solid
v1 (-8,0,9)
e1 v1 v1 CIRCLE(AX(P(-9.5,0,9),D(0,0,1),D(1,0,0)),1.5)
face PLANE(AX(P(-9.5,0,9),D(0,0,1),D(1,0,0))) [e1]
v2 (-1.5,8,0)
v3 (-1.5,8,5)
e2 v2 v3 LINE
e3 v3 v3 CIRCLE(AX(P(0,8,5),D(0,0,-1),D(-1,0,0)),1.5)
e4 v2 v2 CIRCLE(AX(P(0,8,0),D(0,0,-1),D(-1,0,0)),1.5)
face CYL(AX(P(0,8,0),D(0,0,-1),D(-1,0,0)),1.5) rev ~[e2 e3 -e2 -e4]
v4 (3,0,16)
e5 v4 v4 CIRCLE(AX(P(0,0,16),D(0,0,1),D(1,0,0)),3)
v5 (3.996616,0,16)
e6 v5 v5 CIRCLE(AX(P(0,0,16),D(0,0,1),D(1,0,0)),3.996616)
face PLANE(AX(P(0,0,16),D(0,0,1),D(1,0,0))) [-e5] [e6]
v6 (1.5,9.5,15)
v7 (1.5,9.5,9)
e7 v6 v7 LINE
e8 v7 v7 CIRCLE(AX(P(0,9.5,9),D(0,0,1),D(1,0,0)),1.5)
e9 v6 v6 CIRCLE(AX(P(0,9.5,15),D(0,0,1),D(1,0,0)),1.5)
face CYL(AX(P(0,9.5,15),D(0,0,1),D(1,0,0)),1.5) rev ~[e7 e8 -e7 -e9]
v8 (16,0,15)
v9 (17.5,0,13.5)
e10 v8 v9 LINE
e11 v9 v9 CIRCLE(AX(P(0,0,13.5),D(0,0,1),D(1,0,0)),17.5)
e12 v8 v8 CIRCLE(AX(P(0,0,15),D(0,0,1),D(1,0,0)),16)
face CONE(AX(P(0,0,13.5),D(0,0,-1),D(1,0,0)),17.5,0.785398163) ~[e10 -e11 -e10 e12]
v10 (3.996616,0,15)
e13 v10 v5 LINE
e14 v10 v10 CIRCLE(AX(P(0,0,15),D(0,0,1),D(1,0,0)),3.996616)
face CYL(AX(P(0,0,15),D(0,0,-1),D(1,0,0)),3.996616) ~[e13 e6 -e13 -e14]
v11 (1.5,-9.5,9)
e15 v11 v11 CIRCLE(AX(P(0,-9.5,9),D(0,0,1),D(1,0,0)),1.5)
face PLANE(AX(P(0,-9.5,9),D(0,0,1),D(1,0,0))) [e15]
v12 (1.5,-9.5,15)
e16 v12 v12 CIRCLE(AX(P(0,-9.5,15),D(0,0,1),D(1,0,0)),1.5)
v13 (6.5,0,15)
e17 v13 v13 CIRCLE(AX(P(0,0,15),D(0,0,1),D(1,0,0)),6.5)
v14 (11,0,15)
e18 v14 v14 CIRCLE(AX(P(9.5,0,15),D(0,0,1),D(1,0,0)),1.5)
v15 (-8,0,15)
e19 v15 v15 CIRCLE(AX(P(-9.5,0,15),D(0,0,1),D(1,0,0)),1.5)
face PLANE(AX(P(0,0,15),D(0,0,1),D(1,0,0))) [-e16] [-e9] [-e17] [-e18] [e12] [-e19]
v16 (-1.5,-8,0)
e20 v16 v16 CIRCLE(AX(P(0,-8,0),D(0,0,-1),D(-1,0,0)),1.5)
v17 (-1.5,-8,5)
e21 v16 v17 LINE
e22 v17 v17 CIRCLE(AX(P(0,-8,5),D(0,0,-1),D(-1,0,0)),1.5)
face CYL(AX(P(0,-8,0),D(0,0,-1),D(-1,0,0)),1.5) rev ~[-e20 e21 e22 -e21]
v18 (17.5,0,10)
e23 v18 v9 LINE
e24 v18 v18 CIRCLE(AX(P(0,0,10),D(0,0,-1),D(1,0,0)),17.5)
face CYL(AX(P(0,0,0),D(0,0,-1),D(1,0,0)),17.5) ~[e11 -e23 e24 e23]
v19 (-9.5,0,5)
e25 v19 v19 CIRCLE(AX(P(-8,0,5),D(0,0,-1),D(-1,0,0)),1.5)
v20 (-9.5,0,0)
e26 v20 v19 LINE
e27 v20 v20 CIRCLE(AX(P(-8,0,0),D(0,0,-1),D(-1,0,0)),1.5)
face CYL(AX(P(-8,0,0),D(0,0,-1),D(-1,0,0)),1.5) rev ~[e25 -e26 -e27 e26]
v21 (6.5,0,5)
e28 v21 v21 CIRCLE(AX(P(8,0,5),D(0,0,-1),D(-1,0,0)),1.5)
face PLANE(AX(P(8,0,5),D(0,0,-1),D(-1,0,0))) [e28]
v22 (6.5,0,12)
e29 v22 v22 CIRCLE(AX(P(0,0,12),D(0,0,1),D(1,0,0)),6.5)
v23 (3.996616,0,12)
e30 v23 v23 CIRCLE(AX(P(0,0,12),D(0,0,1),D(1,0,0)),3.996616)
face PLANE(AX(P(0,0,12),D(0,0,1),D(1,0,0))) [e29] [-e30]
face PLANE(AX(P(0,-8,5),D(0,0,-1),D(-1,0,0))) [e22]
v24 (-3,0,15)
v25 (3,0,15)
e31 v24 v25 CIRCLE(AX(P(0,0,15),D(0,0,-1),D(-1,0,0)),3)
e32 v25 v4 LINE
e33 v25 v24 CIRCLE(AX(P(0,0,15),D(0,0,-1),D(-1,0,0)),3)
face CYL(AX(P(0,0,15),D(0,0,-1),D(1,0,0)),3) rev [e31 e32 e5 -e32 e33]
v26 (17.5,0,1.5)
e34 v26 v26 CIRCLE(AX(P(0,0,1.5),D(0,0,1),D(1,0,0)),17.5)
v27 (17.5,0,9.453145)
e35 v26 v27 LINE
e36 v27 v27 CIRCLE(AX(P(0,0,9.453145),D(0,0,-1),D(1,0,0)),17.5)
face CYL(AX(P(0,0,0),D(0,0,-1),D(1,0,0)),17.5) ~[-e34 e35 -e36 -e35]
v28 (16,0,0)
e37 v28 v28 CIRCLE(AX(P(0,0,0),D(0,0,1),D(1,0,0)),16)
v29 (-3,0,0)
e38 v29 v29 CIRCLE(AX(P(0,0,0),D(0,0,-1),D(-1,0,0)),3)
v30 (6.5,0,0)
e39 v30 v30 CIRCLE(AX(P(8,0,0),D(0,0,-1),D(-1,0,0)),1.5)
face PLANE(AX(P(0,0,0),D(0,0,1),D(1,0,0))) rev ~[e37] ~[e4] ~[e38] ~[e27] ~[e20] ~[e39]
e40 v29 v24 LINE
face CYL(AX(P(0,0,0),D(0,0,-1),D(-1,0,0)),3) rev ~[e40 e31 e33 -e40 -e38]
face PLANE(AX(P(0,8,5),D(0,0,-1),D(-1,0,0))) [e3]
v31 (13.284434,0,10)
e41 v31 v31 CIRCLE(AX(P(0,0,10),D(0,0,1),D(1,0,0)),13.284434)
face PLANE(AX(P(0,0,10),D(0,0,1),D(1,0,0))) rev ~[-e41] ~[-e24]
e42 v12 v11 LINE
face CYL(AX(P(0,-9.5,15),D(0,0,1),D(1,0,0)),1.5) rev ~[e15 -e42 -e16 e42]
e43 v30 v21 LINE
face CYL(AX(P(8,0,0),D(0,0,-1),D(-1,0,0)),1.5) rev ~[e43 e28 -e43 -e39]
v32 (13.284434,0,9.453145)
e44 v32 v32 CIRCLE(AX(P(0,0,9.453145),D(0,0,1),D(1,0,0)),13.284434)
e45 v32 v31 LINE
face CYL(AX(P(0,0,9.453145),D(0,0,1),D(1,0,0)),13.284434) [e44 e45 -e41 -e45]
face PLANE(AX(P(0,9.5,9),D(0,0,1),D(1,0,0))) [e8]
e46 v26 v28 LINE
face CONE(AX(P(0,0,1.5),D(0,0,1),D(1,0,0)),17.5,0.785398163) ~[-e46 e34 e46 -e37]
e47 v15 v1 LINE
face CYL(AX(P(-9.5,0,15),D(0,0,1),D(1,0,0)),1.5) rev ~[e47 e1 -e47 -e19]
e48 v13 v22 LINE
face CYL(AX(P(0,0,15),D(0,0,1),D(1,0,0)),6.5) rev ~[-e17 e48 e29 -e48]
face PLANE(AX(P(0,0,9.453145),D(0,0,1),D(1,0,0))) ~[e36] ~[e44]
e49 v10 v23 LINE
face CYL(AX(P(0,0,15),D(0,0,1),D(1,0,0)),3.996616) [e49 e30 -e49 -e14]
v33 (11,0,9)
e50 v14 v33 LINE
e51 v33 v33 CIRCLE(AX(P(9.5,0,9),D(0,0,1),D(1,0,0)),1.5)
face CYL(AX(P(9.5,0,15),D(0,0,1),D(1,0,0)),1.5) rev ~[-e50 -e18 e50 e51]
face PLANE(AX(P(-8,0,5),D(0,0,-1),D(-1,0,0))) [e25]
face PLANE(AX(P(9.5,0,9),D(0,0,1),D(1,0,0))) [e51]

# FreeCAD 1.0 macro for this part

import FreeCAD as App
import Part
import Sketcher
Q = App.Units.Quantity


def edges_at(feature, points):
    """Names of the edges that pass closest to the given points."""
    edges = feature.Shape.Edges
    near = lambda p: min(range(len(edges)), key=lambda i: edges[i].distToShape(Part.Vertex(*p))[0])
    return sorted({f"Edge{near(p) + 1}" for p in points})

doc = App.newDocument("Part")
body = doc.addObject("PartDesign::Body", "Body")

# Sketch on XY plane
sketch1 = body.newObject("Sketcher::SketchObject", "Sketch")
sketch1.AttachmentSupport = (doc.getObject("XY_Plane"), [""])
sketch1.MapMode = "FlatFace"
sketch1.addGeometry(Part.Circle(App.Vector(0, 0, 0), App.Vector(0, 0, 1), 18), False)
sketch1.addConstraint([
    Sketcher.Constraint("Coincident", 0, 3, -1, 1),
    Sketcher.Constraint("Diameter", 0, Q("35 mm")),
])
pad1 = body.newObject("PartDesign::Pad", "Pad")
pad1.Profile = sketch1
pad1.Length = 15

# Sketch on XY plane
sketch2 = body.newObject("Sketcher::SketchObject", "Sketch001")
sketch2.AttachmentSupport = (doc.getObject("XY_Plane"), [""])
sketch2.MapMode = "FlatFace"
sketch2.addGeometry([
    Part.Circle(App.Vector(0, -8, 0), App.Vector(0, 0, 1), 1.5),
    Part.Circle(App.Vector(8, 0, 0), App.Vector(0, 0, 1), 1.5),
    Part.Circle(App.Vector(0, 8, 0), App.Vector(0, 0, 1), 1.5),
    Part.Circle(App.Vector(-8, 0, 0), App.Vector(0, 0, 1), 1.5),
], False)
sketch2.addConstraint([
    Sketcher.Constraint("Equal", 0, 1),
    Sketcher.Constraint("Equal", 1, 2),
    Sketcher.Constraint("Equal", 2, 3),
    Sketcher.Constraint("Symmetric", 0, 3, 2, 3, -1, 1),
    Sketcher.Constraint("Symmetric", 1, 3, 3, 3, -1, 1),
    Sketcher.Constraint("PointOnObject", 0, 3, -2),
    Sketcher.Constraint("PointOnObject", 1, 3, -1),
    Sketcher.Constraint("Diameter", 0, Q("3 mm")),
    Sketcher.Constraint("DistanceY", 0, 3, -1, 1, Q("8 mm")),
    Sketcher.Constraint("DistanceX", -1, 1, 1, 3, Q("8 mm")),
])
pocket1 = body.newObject("PartDesign::Pocket", "Pocket")
pocket1.Profile = sketch2
pocket1.Length = 5
pocket1.Reversed = True

# Sketch on XZ plane
sketch3 = body.newObject("Sketcher::SketchObject", "Sketch002")
sketch3.AttachmentSupport = (doc.getObject("XZ_Plane"), [""])
sketch3.MapMode = "FlatFace"
sketch3.addGeometry([
    Part.LineSegment(App.Vector(13.3, 9.5, 0), App.Vector(13.3, 10, 0)),
    Part.LineSegment(App.Vector(13.3, 10, 0), App.Vector(18, 10, 0)),
    Part.LineSegment(App.Vector(18, 10, 0), App.Vector(18, 9.5, 0)),
    Part.LineSegment(App.Vector(18, 9.5, 0), App.Vector(13.3, 9.5, 0)),
], False)
sketch3.addConstraint([
    Sketcher.Constraint("Coincident", 0, 2, 1, 1),
    Sketcher.Constraint("Coincident", 1, 2, 2, 1),
    Sketcher.Constraint("Coincident", 2, 2, 3, 1),
    Sketcher.Constraint("Coincident", 3, 2, 0, 1),
    Sketcher.Constraint("Vertical", 0),
    Sketcher.Constraint("Horizontal", 1),
    Sketcher.Constraint("Vertical", 2),
    Sketcher.Constraint("Horizontal", 3),
    Sketcher.Constraint("DistanceY", -1, 1, 0, 2, Q("10 mm")),
    Sketcher.Constraint("DistanceX", 1, 1, 1, 2, Q("4.684913 mm")),
    Sketcher.Constraint("DistanceY", 0, 1, 0, 2, Q("0.546855 mm")),
    Sketcher.Constraint("DistanceX", -1, 1, 0, 2, Q("13.284434 mm")),
])
groove = body.newObject("PartDesign::Groove", "Groove")
groove.Profile = sketch3
groove.ReferenceAxis = (sketch3, ["V_Axis"])
groove.Angle = 360

# Sketch on XY plane
sketch4 = body.newObject("Sketcher::SketchObject", "Sketch003")
sketch4.AttachmentSupport = (doc.getObject("XY_Plane"), [""])
sketch4.MapMode = "FlatFace"
sketch4.addGeometry(Part.Circle(App.Vector(0, 0, 0), App.Vector(0, 0, 1), 3), False)
sketch4.addConstraint([
    Sketcher.Constraint("Coincident", 0, 3, -1, 1),
    Sketcher.Constraint("Diameter", 0, Q("6 mm")),
])
pocket2 = body.newObject("PartDesign::Pocket", "Pocket001")
pocket2.Profile = sketch4
pocket2.Length = 20
pocket2.Reversed = True

# Sketch on XY plane
sketch5 = body.newObject("Sketcher::SketchObject", "Sketch004")
sketch5.AttachmentSupport = (doc.getObject("XY_Plane"), [""])
sketch5.MapMode = "FlatFace"
sketch5.AttachmentOffset = App.Placement(App.Vector(0, 0, 15), App.Rotation())
sketch5.addGeometry([
    Part.Circle(App.Vector(0, -9.5, 0), App.Vector(0, 0, 1), 1.5),
    Part.Circle(App.Vector(-9.5, 0, 0), App.Vector(0, 0, 1), 1.5),
    Part.Circle(App.Vector(0, 9.5, 0), App.Vector(0, 0, 1), 1.5),
    Part.Circle(App.Vector(9.5, 0, 0), App.Vector(0, 0, 1), 1.5),
], False)
sketch5.addConstraint([
    Sketcher.Constraint("Equal", 0, 1),
    Sketcher.Constraint("Equal", 1, 2),
    Sketcher.Constraint("Equal", 2, 3),
    Sketcher.Constraint("Symmetric", 0, 3, 2, 3, -1, 1),
    Sketcher.Constraint("Symmetric", 1, 3, 3, 3, -1, 1),
    Sketcher.Constraint("PointOnObject", 0, 3, -2),
    Sketcher.Constraint("PointOnObject", 1, 3, -1),
    Sketcher.Constraint("Diameter", 0, Q("3 mm")),
    Sketcher.Constraint("DistanceY", 0, 3, 2, 3, Q("19 mm")),
    Sketcher.Constraint("DistanceX", 1, 3, 3, 3, Q("19 mm")),
])
pocket3 = body.newObject("PartDesign::Pocket", "Pocket002")
pocket3.Profile = sketch5
pocket3.Length = 6
doc.recompute()

chamfer = body.newObject("PartDesign::Chamfer", "Chamfer")
chamfer.Base = (pocket3, edges_at(pocket3, [(-17.5, 0, 0), (-17.5, 0, 15)]))
chamfer.Size = 1.5

# Sketch on XY plane
sketch6 = body.newObject("Sketcher::SketchObject", "Sketch005")
sketch6.AttachmentSupport = (doc.getObject("XY_Plane"), [""])
sketch6.MapMode = "FlatFace"
sketch6.AttachmentOffset = App.Placement(App.Vector(0, 0, 15), App.Rotation())
sketch6.addGeometry([
    Part.Circle(App.Vector(0, 0, 0), App.Vector(0, 0, 1), 6.5),
    Part.Circle(App.Vector(0, 0, 0), App.Vector(0, 0, 1), 4),
], False)
sketch6.addConstraint([
    Sketcher.Constraint("Coincident", 0, 3, -1, 1),
    Sketcher.Constraint("Coincident", 1, 3, -1, 1),
    Sketcher.Constraint("Diameter", 0, Q("13 mm")),
    Sketcher.Constraint("Diameter", 1, Q("7.993232 mm")),
])
pocket4 = body.newObject("PartDesign::Pocket", "Pocket003")
pocket4.Profile = sketch6
pocket4.Length = 3

# Sketch on XY plane
sketch7 = body.newObject("Sketcher::SketchObject", "Sketch006")
sketch7.AttachmentSupport = (doc.getObject("XY_Plane"), [""])
sketch7.MapMode = "FlatFace"
sketch7.AttachmentOffset = App.Placement(App.Vector(0, 0, 15), App.Rotation())
sketch7.addGeometry([
    Part.Circle(App.Vector(0, 0, 0), App.Vector(0, 0, 1), 4),
    Part.Circle(App.Vector(0, 0, 0), App.Vector(0, 0, 1), 3),
], False)
sketch7.addConstraint([
    Sketcher.Constraint("Coincident", 0, 3, -1, 1),
    Sketcher.Constraint("Coincident", 1, 3, -1, 1),
    Sketcher.Constraint("Diameter", 1, Q("6 mm")),
    Sketcher.Constraint("Diameter", 0, Q("7.993232 mm")),
])
pad2 = body.newObject("PartDesign::Pad", "Pad001")
pad2.Profile = sketch7
pad2.Length = 1

doc.recompute()
